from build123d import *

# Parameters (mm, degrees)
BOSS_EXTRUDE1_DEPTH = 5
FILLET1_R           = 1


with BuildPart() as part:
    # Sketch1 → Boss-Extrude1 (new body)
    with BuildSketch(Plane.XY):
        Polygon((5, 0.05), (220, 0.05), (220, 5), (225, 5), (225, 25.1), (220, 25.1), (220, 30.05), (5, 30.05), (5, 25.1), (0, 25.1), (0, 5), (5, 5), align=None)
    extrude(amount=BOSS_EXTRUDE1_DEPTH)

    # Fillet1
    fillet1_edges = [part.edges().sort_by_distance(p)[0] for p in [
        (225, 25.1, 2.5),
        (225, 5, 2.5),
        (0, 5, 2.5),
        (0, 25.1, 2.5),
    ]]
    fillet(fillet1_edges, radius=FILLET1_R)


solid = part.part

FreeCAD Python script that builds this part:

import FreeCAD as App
import Part
import Sketcher
Q = App.Units.Quantity


def edges_at(feature, points):
    """Names of the edges that pass closest to the given points."""
    edges = feature.Shape.Edges
    near = lambda p: min(range(len(edges)), key=lambda i: edges[i].distToShape(Part.Vertex(*p))[0])
    return sorted({f"Edge{near(p) + 1}" for p in points})


def add_polygon(sketch, points):
    """Adds a closed chain of lines whose ends are joined by coincident constraints."""
    first, n = sketch.GeometryCount, len(points)
    for a, b in zip(points, points[1:] + points[:1]):
        sketch.addGeometry(Part.LineSegment(App.Vector(*a, 0), App.Vector(*b, 0)), False)
    for i in range(n):
        sketch.addConstraint(Sketcher.Constraint("Coincident", first + i, 2, first + (i + 1) % n, 1))

doc = App.newDocument("Part")
body = doc.addObject("PartDesign::Body", "Body")

# Sketch on XY plane
sketch1 = body.newObject("Sketcher::SketchObject", "Sketch")
sketch1.AttachmentSupport = (doc.getObject("XY_Plane"), [""])
sketch1.MapMode = "FlatFace"
add_polygon(sketch1, [(5, 0.1), (220, 0.1), (220, 5), (225, 5), (225, 25.1), (220, 25.1), (220, 30.1), (5, 30.1), (5, 25.1), (0, 25.1), (0, 5), (5, 5)])  # lines 0-11
sketch1.addConstraint(Sketcher.Constraint("Horizontal", 0))
sketch1.addConstraint(Sketcher.Constraint("Vertical", 1))
sketch1.addConstraint(Sketcher.Constraint("Horizontal", 2))
sketch1.addConstraint(Sketcher.Constraint("Vertical", 3))
sketch1.addConstraint(Sketcher.Constraint("Horizontal", 4))
sketch1.addConstraint(Sketcher.Constraint("Vertical", 5))
sketch1.addConstraint(Sketcher.Constraint("Horizontal", 6))
sketch1.addConstraint(Sketcher.Constraint("Vertical", 7))
sketch1.addConstraint(Sketcher.Constraint("Horizontal", 8))
sketch1.addConstraint(Sketcher.Constraint("Vertical", 9))
sketch1.addConstraint(Sketcher.Constraint("Horizontal", 10))
sketch1.addConstraint(Sketcher.Constraint("Vertical", 11))
sketch1.addConstraint(Sketcher.Constraint("PointOnObject", 8, 2, -2))
sketch1.addConstraint(Sketcher.Constraint("Horizontal", 4, 2, 7, 2))
sketch1.addConstraint(Sketcher.Constraint("Horizontal", 2, 2, 9, 2))
sketch1.addConstraint(Sketcher.Constraint("Vertical", 1, 2, 4, 2))
sketch1.addConstraint(Sketcher.Constraint("Vertical", 7, 2, 10, 2))
sketch1.addConstraint(Sketcher.Constraint("Equal", 4, 8))
sketch1.addConstraint(Sketcher.Constraint("Equal", 1, 5))
sketch1.addConstraint(Sketcher.Constraint("DistanceX", 0, 1, 0, 2, Q("215 mm")))
sketch1.addConstraint(Sketcher.Constraint("DistanceX", 2, 1, 2, 2, Q("5 mm")))
sketch1.addConstraint(Sketcher.Constraint("DistanceY", 3, 1, 3, 2, Q("20.1 mm")))
sketch1.addConstraint(Sketcher.Constraint("DistanceY", -1, 1, 1, 2, Q("5 mm")))
sketch1.addConstraint(Sketcher.Constraint("DistanceY", 0, 2, 5, 2, Q("30 mm")))
pad1 = body.newObject("PartDesign::Pad", "Pad")
pad1.Profile = sketch1
pad1.Length = 5
doc.recompute()

fillet = body.newObject("PartDesign::Fillet", "Fillet")
fillet.Base = (pad1, edges_at(pad1, [
    (225, 25.1, 2.5),
    (225, 5, 2.5),
    (0, 5, 2.5),
    (0, 25.1, 2.5),
]))
fillet.Radius = 1

doc.recompute()
